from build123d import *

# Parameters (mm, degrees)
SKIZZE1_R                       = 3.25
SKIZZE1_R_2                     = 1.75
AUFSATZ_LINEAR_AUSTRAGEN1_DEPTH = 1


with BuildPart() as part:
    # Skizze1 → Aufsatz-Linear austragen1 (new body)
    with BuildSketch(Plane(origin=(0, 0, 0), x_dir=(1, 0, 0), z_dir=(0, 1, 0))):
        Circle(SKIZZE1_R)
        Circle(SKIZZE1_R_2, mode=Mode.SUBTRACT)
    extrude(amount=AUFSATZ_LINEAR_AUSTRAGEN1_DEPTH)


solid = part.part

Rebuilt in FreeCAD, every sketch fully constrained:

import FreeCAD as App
import Part
import Sketcher
from FreeCAD import Vector

doc = App.newDocument("Part")
params = doc.addObject("Spreadsheet::Sheet", "Params")
for row, (alias, value) in enumerate([
    ("sketch1_diameter", "6.5 mm"),
    ("sketch1_diameter2", "3.5 mm"),
    ("pad1_length", "1 mm"),
], start=1):
    params.set(f"A{row}", alias)
    params.set(f"B{row}", "=" + value)
    params.setAlias(f"B{row}", alias)

body = doc.addObject("PartDesign::Body", "Body")

sketch1 = doc.addObject("Sketcher::SketchObject", "Sketch")
body.addObject(sketch1)
sketch1.AttachmentSupport = (doc.XZ_Plane, [""])
sketch1.MapMode = "FlatFace"
sketch1.addGeometry([
    Part.Circle(Vector(0, 0, 0), Vector(0, 0, 1), 3.2),
    Part.Circle(Vector(0, 0, 0), Vector(0, 0, 1), 1.8),
], False)
sketch1.addConstraint([
    Sketcher.Constraint("Coincident", 0, 3, -1, 1),
    Sketcher.Constraint("Coincident", 1, 3, -1, 1),
    Sketcher.Constraint("Diameter", 0, 6.5),
    Sketcher.Constraint("Diameter", 1, 3.5),
])
sketch1.setExpression("Constraints[2]", "Params.sketch1_diameter")
sketch1.setExpression("Constraints[3]", "Params.sketch1_diameter2")
pad1 = doc.addObject("PartDesign::Pad", "Pad")
body.addObject(pad1)
pad1.Profile = sketch1
pad1.setExpression("Length", "Params.pad1_length")
pad1.Reversed = True

doc.recompute()
